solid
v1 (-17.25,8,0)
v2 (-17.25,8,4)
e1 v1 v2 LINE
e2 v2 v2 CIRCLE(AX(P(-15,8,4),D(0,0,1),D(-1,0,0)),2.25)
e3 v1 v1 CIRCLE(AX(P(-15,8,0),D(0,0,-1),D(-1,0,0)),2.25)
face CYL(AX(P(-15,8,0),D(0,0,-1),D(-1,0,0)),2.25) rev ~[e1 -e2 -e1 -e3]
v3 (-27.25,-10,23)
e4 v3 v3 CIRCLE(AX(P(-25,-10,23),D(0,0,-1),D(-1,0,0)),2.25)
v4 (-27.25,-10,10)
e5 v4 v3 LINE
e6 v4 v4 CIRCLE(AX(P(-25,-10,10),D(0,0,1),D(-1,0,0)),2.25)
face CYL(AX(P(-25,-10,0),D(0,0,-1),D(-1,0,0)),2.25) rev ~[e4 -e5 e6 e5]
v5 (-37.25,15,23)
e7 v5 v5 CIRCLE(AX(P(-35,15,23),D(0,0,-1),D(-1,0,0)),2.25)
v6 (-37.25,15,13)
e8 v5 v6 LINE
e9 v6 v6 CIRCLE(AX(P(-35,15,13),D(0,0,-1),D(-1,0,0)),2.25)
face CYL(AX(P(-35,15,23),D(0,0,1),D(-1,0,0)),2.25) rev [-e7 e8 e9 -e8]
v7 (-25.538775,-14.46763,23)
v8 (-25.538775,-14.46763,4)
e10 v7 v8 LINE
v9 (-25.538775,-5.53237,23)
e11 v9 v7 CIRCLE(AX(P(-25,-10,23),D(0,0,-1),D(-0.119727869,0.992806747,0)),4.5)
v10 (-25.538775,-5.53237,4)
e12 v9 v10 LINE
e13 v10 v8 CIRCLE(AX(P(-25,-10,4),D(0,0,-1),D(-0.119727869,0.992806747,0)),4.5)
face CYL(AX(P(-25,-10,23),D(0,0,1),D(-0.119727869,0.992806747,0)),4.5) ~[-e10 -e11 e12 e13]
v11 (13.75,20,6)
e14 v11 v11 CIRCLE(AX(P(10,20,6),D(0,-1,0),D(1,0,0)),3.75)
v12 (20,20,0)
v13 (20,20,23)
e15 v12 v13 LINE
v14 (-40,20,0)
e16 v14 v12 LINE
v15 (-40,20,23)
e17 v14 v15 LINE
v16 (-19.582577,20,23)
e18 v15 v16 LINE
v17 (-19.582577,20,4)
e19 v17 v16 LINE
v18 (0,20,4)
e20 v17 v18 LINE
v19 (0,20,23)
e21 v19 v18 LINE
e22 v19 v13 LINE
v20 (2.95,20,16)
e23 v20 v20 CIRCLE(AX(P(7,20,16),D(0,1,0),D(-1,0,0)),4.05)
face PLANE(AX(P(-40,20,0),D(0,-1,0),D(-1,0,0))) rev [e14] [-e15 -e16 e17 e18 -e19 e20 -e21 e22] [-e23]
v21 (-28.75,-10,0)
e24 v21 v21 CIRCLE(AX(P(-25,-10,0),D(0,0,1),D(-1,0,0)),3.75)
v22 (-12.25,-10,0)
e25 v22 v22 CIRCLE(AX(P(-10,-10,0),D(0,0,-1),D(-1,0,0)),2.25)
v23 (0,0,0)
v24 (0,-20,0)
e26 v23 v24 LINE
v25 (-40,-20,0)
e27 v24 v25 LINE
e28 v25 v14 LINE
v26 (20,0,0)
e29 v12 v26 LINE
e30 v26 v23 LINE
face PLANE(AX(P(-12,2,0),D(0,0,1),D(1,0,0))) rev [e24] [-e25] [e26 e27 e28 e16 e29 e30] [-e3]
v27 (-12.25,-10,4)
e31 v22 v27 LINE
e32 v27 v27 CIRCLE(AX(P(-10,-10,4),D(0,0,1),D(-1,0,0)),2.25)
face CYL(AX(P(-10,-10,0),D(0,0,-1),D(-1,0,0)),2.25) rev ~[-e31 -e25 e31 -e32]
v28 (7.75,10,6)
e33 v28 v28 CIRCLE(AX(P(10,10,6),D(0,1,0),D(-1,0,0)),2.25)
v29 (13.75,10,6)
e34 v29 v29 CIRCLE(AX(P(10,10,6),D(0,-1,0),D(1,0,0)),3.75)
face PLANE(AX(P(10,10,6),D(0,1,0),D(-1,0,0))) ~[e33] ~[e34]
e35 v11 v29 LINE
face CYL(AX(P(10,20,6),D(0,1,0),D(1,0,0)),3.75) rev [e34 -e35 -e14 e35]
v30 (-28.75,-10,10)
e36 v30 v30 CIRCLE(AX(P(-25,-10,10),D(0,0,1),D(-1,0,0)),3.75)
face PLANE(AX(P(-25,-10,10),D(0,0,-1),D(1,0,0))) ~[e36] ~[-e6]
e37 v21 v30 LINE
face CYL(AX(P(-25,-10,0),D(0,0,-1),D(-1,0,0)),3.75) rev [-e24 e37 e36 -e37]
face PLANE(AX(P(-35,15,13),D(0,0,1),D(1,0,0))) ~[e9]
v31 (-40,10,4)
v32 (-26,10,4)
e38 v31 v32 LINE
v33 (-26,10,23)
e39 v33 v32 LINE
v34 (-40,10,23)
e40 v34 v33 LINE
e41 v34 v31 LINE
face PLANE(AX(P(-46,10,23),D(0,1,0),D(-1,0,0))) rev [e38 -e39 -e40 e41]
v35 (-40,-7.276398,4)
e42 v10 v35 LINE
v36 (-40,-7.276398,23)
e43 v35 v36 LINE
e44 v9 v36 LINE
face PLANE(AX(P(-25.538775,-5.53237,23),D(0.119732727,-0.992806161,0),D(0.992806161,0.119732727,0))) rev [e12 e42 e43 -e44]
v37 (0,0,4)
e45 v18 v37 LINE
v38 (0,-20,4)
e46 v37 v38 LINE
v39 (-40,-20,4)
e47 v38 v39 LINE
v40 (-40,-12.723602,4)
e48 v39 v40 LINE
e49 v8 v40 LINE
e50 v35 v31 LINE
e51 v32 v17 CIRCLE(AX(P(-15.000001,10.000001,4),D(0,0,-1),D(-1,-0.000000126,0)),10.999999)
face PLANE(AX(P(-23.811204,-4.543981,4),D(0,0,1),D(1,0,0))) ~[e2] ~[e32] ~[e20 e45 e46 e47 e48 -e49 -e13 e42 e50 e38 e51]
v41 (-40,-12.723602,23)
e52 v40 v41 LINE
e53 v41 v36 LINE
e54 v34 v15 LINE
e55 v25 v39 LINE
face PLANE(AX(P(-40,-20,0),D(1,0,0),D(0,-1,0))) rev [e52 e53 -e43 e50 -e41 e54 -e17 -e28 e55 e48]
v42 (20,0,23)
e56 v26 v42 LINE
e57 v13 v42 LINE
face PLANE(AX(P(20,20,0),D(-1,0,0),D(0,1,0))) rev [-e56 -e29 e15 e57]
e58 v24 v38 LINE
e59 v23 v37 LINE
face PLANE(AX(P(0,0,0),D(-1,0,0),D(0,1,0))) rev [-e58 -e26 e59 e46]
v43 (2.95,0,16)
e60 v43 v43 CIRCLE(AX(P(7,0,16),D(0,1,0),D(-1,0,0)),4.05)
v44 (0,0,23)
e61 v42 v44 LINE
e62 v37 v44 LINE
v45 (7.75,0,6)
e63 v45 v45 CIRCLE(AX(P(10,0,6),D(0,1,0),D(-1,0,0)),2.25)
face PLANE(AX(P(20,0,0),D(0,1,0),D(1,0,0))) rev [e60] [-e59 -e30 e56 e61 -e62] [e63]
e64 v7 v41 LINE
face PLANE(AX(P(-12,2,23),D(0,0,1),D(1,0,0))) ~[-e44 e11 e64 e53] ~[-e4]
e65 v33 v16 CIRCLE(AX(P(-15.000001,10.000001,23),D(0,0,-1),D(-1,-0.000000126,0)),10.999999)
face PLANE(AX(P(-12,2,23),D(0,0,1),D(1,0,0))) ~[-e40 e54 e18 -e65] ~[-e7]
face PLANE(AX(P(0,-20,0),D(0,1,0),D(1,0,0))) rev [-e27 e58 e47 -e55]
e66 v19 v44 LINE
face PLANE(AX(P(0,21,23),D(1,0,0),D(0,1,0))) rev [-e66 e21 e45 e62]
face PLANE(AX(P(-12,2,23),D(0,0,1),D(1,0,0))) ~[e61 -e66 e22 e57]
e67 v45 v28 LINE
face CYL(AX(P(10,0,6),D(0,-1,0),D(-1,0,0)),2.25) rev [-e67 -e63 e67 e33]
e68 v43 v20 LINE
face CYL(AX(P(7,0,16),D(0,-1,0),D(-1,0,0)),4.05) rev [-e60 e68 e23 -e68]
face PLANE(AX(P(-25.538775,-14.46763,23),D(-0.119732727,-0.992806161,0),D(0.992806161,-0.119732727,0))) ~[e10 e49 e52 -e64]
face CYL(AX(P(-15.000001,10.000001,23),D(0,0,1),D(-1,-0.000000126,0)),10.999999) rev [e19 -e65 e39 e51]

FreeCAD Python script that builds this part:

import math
import FreeCAD as App
import Part
import Sketcher
from FreeCAD import Vector

doc = App.newDocument("Part")
body = doc.addObject("PartDesign::Body", "Body")

# Sketch on XY plane
sketch1 = body.newObject("Sketcher::SketchObject", "Sketch")
sketch1.AttachmentSupport = (doc.getObject("XY_Plane"), [""])
sketch1.MapMode = "FlatFace"
sketch1.addGeometry(Part.LineSegment(Vector(0, -20, 0), Vector(40, -20, 0)), False)
sketch1.addGeometry(Part.LineSegment(Vector(40, -20, 0), Vector(40, 20, 0)), False)
sketch1.addGeometry(Part.LineSegment(Vector(40, 20, 0), Vector(-20, 20, 0)), False)
sketch1.addGeometry(Part.LineSegment(Vector(-20, 20, 0), Vector(-20, 0, 0)), False)
sketch1.addGeometry(Part.LineSegment(Vector(-20, 0, 0), Vector(0, 0, 0)), False)
sketch1.addGeometry(Part.LineSegment(Vector(0, 0, 0), Vector(0, -20, 0)), False)
sketch1.addGeometry(Part.Circle(Vector(10, -10, 0), Vector(0, 0, 1), 2.2), False)
sketch1.addGeometry(Part.Circle(Vector(25, -10, 0), Vector(0, 0, 1), 2.2), False)
sketch1.addGeometry(Part.Circle(Vector(15, 8, 0), Vector(0, 0, 1), 2.2), False)
sketch1.addConstraint(Sketcher.Constraint("Coincident", 0, 2, 1, 1))
sketch1.addConstraint(Sketcher.Constraint("Coincident", 1, 2, 2, 1))
sketch1.addConstraint(Sketcher.Constraint("Coincident", 2, 2, 3, 1))
sketch1.addConstraint(Sketcher.Constraint("Coincident", 3, 2, 4, 1))
sketch1.addConstraint(Sketcher.Constraint("Coincident", 4, 2, 5, 1))
sketch1.addConstraint(Sketcher.Constraint("Coincident", 5, 2, 0, 1))
sketch1.addConstraint(Sketcher.Constraint("Horizontal", 0))
sketch1.addConstraint(Sketcher.Constraint("Vertical", 1))
sketch1.addConstraint(Sketcher.Constraint("Horizontal", 2))
sketch1.addConstraint(Sketcher.Constraint("Vertical", 3))
sketch1.addConstraint(Sketcher.Constraint("Horizontal", 4))
sketch1.addConstraint(Sketcher.Constraint("Vertical", 5))
sketch1.addConstraint(Sketcher.Constraint("Coincident", 4, 2, -1, 1))
sketch1.addConstraint(Sketcher.Constraint("Equal", 6, 7))
sketch1.addConstraint(Sketcher.Constraint("Equal", 7, 8))
sketch1.addConstraint(Sketcher.Constraint("Horizontal", 6, 3, 7, 3))
sketch1.addConstraint(Sketcher.Constraint("Equal", 0, 1))
sketch1.addConstraint(Sketcher.Constraint("Equal", 4, 3))
sketch1.addConstraint(Sketcher.Constraint("Equal", 3, 5))
sketch1.addConstraint(Sketcher.Constraint("Diameter", 6, 4.5))
sketch1.addConstraint(Sketcher.Constraint("DistanceX", 0, 1, 0, 2, 40.0))
sketch1.addConstraint(Sketcher.Constraint("DistanceX", -1, 1, 6, 3, 10.0))
sketch1.addConstraint(Sketcher.Constraint("DistanceY", 6, 3, -1, 1, 10.0))
sketch1.addConstraint(Sketcher.Constraint("DistanceX", -1, 1, 7, 3, 25.0))
sketch1.addConstraint(Sketcher.Constraint("DistanceX", -1, 1, 8, 3, 15.0))
sketch1.addConstraint(Sketcher.Constraint("DistanceY", -1, 1, 8, 3, 8.0))
pad1 = body.newObject("PartDesign::Pad", "Pad")
pad1.Profile = sketch1
pad1.Length = 23

# Sketch on XY plane
sketch2 = body.newObject("Sketcher::SketchObject", "Sketch001")
sketch2.AttachmentSupport = (doc.getObject("XY_Plane"), [""])
sketch2.MapMode = "FlatFace"
sketch2.AttachmentOffset = App.Placement(Vector(0, 0, 23), App.Rotation())
sketch2.addGeometry(Part.LineSegment(Vector(46, 10, 0), Vector(26, 10, 0)), False)
sketch2.addGeometry(Part.ArcOfCircle(Part.Circle(Vector(15, 10, 0), Vector(0, 0, 1), 11), math.radians(0), math.radians(90)), False)
sketch2.addGeometry(Part.LineSegment(Vector(15, 21, 0), Vector(0, 21, 0)), False)
sketch2.addGeometry(Part.LineSegment(Vector(0, 21, 0), Vector(0, -23, 0)), False)
sketch2.addGeometry(Part.LineSegment(Vector(0, -23, 0), Vector(46, -23, 0)), False)
sketch2.addGeometry(Part.LineSegment(Vector(46, -23, 0), Vector(46, -12, 0)), False)
sketch2.addGeometry(Part.LineSegment(Vector(46, -12, 0), Vector(25.5, -14.5, 0)), False)
sketch2.addGeometry(Part.ArcOfCircle(Part.Circle(Vector(25, -10, 0), Vector(0, 0, 1), 4.5), math.radians(83), math.radians(277)), False)
sketch2.addGeometry(Part.LineSegment(Vector(25.5, -5.5, 0), Vector(46, -8, 0)), False)
sketch2.addGeometry(Part.LineSegment(Vector(46, -8, 0), Vector(46, 10, 0)), False)
sketch2.addConstraint(Sketcher.Constraint("Coincident", 0, 2, 1, 1))
sketch2.addConstraint(Sketcher.Constraint("Tangent", 1, 2, 2, 1))
sketch2.addConstraint(Sketcher.Constraint("Coincident", 2, 2, 3, 1))
sketch2.addConstraint(Sketcher.Constraint("Coincident", 3, 2, 4, 1))
sketch2.addConstraint(Sketcher.Constraint("Coincident", 4, 2, 5, 1))
sketch2.addConstraint(Sketcher.Constraint("Coincident", 5, 2, 6, 1))
sketch2.addConstraint(Sketcher.Constraint("Coincident", 6, 2, 7, 2))
sketch2.addConstraint(Sketcher.Constraint("Coincident", 7, 1, 8, 1))
sketch2.addConstraint(Sketcher.Constraint("Coincident", 8, 2, 9, 1))
sketch2.addConstraint(Sketcher.Constraint("Coincident", 9, 2, 0, 1))
sketch2.addConstraint(Sketcher.Constraint("Horizontal", 0))
sketch2.addConstraint(Sketcher.Constraint("Horizontal", 2))
sketch2.addConstraint(Sketcher.Constraint("Vertical", 3))
sketch2.addConstraint(Sketcher.Constraint("Horizontal", 4))
sketch2.addConstraint(Sketcher.Constraint("Vertical", 5))
sketch2.addConstraint(Sketcher.Constraint("Vertical", 9))
sketch2.addConstraint(Sketcher.Constraint("PointOnObject", 2, 2, -2))
sketch2.addConstraint(Sketcher.Constraint("Horizontal", 1, 3, 0, 2))
sketch2.addConstraint(Sketcher.Constraint("Vertical", 6, 2, 7, 1))
sketch2.addConstraint(Sketcher.Constraint("Vertical", 5, 2, 8, 2))
sketch2.addConstraint(Sketcher.Constraint("Equal", 6, 8))
sketch2.addConstraint(Sketcher.Constraint("Radius", 1, 10.999999))
sketch2.addConstraint(Sketcher.Constraint("Radius", 7, 4.5))
sketch2.addConstraint(Sketcher.Constraint("DistanceX", 0, 2, 0, 1, 20.0))
sketch2.addConstraint(Sketcher.Constraint("DistanceX", 2, 2, 2, 1, 15.0))
sketch2.addConstraint(Sketcher.Constraint("DistanceY", 3, 2, 3, 1, 44.0))
sketch2.addConstraint(Sketcher.Constraint("DistanceY", 5, 1, 5, 2, 11.0))
sketch2.addConstraint(Sketcher.Constraint("DistanceY", 9, 1, 9, 2, 18.0))
sketch2.addConstraint(Sketcher.Constraint("DistanceY", -1, 1, 1, 3, 10.000001))
sketch2.addConstraint(Sketcher.Constraint("DistanceX", -1, 1, 7, 3, 25.0))
sketch2.addConstraint(Sketcher.Constraint("DistanceY", 6, 2, -1, 1, 14.46763))
pocket1 = body.newObject("PartDesign::Pocket", "Pocket")
pocket1.Profile = sketch2
pocket1.Length = 19

# Sketch on XZ plane
sketch3 = body.newObject("Sketcher::SketchObject", "Sketch002")
sketch3.AttachmentSupport = (doc.getObject("XZ_Plane"), [""])
sketch3.MapMode = "FlatFace"
sketch3.addGeometry(Part.Circle(Vector(-7, 16, 0), Vector(0, 0, 1), 4), False)
sketch3.addGeometry(Part.Circle(Vector(-10, 6, 0), Vector(0, 0, 1), 2.2), False)
sketch3.addConstraint(Sketcher.Constraint("Diameter", 0, 8.1))
sketch3.addConstraint(Sketcher.Constraint("Diameter", 1, 4.5))
sketch3.addConstraint(Sketcher.Constraint("DistanceX", 0, 3, -1, 1, 7.0))
sketch3.addConstraint(Sketcher.Constraint("DistanceY", -1, 1, 0, 3, 16.0))
sketch3.addConstraint(Sketcher.Constraint("DistanceX", 1, 3, -1, 1, 10.0))
sketch3.addConstraint(Sketcher.Constraint("DistanceY", -1, 1, 1, 3, 6.0))
pocket2 = body.newObject("PartDesign::Pocket", "Pocket001")
pocket2.Profile = sketch3
pocket2.Type = "ThroughAll"

# Sketch on XY plane
sketch4 = body.newObject("Sketcher::SketchObject", "Sketch003")
sketch4.AttachmentSupport = (doc.getObject("XY_Plane"), [""])
sketch4.MapMode = "FlatFace"
sketch4.AttachmentOffset = App.Placement(Vector(0, 0, 23), App.Rotation())
sketch4.addGeometry(Part.Circle(Vector(35, 15, 0), Vector(0, 0, 1), 2.2), False)
sketch4.addConstraint(Sketcher.Constraint("Diameter", 0, 4.5))
sketch4.addConstraint(Sketcher.Constraint("DistanceX", -1, 1, 0, 3, 35.0))
sketch4.addConstraint(Sketcher.Constraint("DistanceY", -1, 1, 0, 3, 15.0))
pocket3 = body.newObject("PartDesign::Pocket", "Pocket002")
pocket3.Profile = sketch4
pocket3.Length = 10

# Sketch on XZ plane
sketch5 = body.newObject("Sketcher::SketchObject", "Sketch004")
sketch5.AttachmentSupport = (doc.getObject("XZ_Plane"), [""])
sketch5.MapMode = "FlatFace"
sketch5.AttachmentOffset = App.Placement(Vector(0, 0, -20), App.Rotation())
sketch5.addGeometry(Part.Circle(Vector(-10, 6, 0), Vector(0, 0, 1), 3.8), False)
sketch5.addConstraint(Sketcher.Constraint("Diameter", 0, 7.5))
sketch5.addConstraint(Sketcher.Constraint("DistanceX", 0, 3, -1, 1, 10.0))
sketch5.addConstraint(Sketcher.Constraint("DistanceY", -1, 1, 0, 3, 6.0))
pocket4 = body.newObject("PartDesign::Pocket", "Pocket003")
pocket4.Profile = sketch5
pocket4.Length = 10
pocket4.Reversed = True

# Sketch on XY plane
sketch6 = body.newObject("Sketcher::SketchObject", "Sketch005")
sketch6.AttachmentSupport = (doc.getObject("XY_Plane"), [""])
sketch6.MapMode = "FlatFace"
sketch6.addGeometry(Part.Circle(Vector(25, -10, 0), Vector(0, 0, 1), 3.8), False)
sketch6.addConstraint(Sketcher.Constraint("Diameter", 0, 7.5))
sketch6.addConstraint(Sketcher.Constraint("DistanceX", -1, 1, 0, 3, 25.0))
sketch6.addConstraint(Sketcher.Constraint("DistanceY", 0, 3, -1, 1, 10.0))
pocket5 = body.newObject("PartDesign::Pocket", "Pocket004")
pocket5.Profile = sketch6
pocket5.Length = 10
pocket5.Reversed = True
body2 = doc.addObject("PartDesign::Body", "Body001")
doc.recompute()

mirroring = doc.addObject("Part::Mirroring", "Mirroring")
mirroring.Source = body
mirroring.Base = Vector(0, 0, 0)
mirroring.Normal = Vector(1, 0, 0)
body2.BaseFeature = mirroring
doc.recompute()
body.Visibility = False
mirroring.Visibility = False

doc.recompute()
